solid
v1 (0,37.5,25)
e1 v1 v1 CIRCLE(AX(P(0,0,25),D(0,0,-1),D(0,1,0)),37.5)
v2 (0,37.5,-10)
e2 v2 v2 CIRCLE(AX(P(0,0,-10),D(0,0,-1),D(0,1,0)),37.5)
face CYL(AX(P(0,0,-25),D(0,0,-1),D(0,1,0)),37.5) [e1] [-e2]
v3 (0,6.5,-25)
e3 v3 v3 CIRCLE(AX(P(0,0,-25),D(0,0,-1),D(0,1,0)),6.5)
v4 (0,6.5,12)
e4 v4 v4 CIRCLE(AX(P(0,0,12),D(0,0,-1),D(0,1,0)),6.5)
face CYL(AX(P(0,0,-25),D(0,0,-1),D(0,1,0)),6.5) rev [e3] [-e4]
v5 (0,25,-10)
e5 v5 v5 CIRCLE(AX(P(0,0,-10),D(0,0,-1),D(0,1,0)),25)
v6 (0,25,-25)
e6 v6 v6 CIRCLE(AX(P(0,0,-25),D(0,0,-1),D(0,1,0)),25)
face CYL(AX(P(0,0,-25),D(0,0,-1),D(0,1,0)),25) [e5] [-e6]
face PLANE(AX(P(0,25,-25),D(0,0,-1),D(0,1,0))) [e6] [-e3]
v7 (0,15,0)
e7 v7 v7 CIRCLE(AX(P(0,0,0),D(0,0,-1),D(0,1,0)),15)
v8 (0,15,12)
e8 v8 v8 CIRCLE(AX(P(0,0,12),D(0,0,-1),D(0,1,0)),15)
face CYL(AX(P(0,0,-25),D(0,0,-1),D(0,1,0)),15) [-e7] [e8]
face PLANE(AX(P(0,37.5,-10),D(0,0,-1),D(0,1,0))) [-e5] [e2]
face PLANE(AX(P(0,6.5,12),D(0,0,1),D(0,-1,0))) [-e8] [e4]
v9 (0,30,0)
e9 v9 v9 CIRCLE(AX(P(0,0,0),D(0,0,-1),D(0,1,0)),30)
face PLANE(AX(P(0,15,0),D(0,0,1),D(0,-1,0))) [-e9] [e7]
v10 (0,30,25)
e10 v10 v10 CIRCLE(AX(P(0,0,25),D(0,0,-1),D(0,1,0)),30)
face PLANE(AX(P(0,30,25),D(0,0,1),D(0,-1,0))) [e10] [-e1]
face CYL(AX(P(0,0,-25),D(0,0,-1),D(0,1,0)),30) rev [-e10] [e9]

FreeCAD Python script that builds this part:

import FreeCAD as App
import Part
import Sketcher
from FreeCAD import Vector


def add_polygon(sketch, points):
    """Adds a closed chain of lines whose ends are joined by coincident constraints."""
    first, n = sketch.GeometryCount, len(points)
    for a, b in zip(points, points[1:] + points[:1]):
        sketch.addGeometry(Part.LineSegment(App.Vector(*a, 0), App.Vector(*b, 0)), False)
    for i in range(n):
        sketch.addConstraint(Sketcher.Constraint("Coincident", first + i, 2, first + (i + 1) % n, 1))

doc = App.newDocument("Part")
body = doc.addObject("PartDesign::Body", "Body")

sketch1 = body.newObject("Sketcher::SketchObject", "Sketch")
sketch1.AttachmentSupport = (doc.getObject("YZ_Plane"), [""])
sketch1.MapMode = "FlatFace"
add_polygon(sketch1, [(15, 12), (6.5, 12), (6.5, -25), (25, -25), (25, -10), (37.5, -10), (37.5, 25), (30, 25), (30, 0), (15, 0)])
sketch1.addConstraint(Sketcher.Constraint("Horizontal", 0))
sketch1.addConstraint(Sketcher.Constraint("Vertical", 1))
sketch1.addConstraint(Sketcher.Constraint("Horizontal", 2))
sketch1.addConstraint(Sketcher.Constraint("Vertical", 3))
sketch1.addConstraint(Sketcher.Constraint("Horizontal", 4))
sketch1.addConstraint(Sketcher.Constraint("Vertical", 5))
sketch1.addConstraint(Sketcher.Constraint("Horizontal", 6))
sketch1.addConstraint(Sketcher.Constraint("Vertical", 7))
sketch1.addConstraint(Sketcher.Constraint("Horizontal", 8))
sketch1.addConstraint(Sketcher.Constraint("Vertical", 9))
sketch1.addConstraint(Sketcher.Constraint("PointOnObject", 7, 2, -1))
sketch1.addConstraint(Sketcher.Constraint("Equal", 8, 3))
sketch1.addConstraint(Sketcher.Constraint("DistanceX", 8, 2, 8, 1, 15.0))
sketch1.addConstraint(Sketcher.Constraint("DistanceY", 1, 2, 1, 1, 37.0))
sketch1.addConstraint(Sketcher.Constraint("DistanceY", 5, 1, 5, 2, 35.0))
sketch1.addConstraint(Sketcher.Constraint("DistanceY", 7, 2, 7, 1, 25.0))
sketch1.addConstraint(Sketcher.Constraint("DistanceX", 0, 2, 0, 1, 8.5))
sketch1.addConstraint(Sketcher.Constraint("DistanceX", 2, 1, 2, 2, 18.5))
sketch1.addConstraint(Sketcher.Constraint("DistanceX", 4, 1, 4, 2, 12.5))
sketch1.addConstraint(Sketcher.Constraint("DistanceX", -1, 1, 2, 2, 25.0))
revolution = body.newObject("PartDesign::Revolution", "Revolution")
revolution.Profile = sketch1
revolution.ReferenceAxis = (sketch1, ["V_Axis"])
revolution.Angle = 360

doc.recompute()
